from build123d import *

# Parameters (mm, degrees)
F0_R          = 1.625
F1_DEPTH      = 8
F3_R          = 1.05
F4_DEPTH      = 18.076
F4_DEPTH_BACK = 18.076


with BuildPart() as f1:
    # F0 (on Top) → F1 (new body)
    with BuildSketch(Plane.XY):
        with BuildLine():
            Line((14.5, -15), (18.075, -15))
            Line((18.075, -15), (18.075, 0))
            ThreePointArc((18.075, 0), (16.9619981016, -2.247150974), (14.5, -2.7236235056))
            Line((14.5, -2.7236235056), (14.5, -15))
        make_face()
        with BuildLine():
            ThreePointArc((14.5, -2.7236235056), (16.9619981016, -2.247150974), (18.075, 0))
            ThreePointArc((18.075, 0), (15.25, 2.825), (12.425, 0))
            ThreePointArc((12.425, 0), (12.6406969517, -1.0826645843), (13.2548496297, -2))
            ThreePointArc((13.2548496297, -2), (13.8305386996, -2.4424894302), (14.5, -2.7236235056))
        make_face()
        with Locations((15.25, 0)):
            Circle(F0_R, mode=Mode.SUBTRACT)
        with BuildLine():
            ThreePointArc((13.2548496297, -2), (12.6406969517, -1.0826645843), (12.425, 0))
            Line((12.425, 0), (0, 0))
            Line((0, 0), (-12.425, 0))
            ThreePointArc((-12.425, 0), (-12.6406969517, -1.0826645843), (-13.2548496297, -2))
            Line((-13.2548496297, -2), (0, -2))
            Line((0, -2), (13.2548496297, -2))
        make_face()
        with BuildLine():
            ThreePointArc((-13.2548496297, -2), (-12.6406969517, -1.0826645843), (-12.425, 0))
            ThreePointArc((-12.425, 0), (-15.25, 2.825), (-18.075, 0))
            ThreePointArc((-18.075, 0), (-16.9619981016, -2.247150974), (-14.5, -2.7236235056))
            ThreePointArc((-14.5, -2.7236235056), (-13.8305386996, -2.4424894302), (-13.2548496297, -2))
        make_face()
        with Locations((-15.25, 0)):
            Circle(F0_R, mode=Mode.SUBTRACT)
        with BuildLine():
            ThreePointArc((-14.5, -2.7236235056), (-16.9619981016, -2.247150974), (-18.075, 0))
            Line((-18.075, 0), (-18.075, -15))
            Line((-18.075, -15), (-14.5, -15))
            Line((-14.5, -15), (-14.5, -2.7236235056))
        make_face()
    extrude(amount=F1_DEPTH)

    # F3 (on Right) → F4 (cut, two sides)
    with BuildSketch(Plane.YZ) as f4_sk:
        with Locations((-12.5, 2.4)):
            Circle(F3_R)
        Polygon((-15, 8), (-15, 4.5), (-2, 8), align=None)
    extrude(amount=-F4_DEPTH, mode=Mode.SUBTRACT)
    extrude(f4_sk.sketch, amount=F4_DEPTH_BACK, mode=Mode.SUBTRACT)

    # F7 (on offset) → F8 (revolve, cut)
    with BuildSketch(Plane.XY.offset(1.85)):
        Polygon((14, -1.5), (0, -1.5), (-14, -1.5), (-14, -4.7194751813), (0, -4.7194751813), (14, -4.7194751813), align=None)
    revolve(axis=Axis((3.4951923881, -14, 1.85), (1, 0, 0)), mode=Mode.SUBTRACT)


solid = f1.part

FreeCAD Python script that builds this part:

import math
import FreeCAD as App
import Part
import Sketcher
from FreeCAD import Vector
Q = App.Units.Quantity


def add_polygon(sketch, points):
    """Adds a closed chain of lines whose ends are joined by coincident constraints."""
    first, n = sketch.GeometryCount, len(points)
    for a, b in zip(points, points[1:] + points[:1]):
        sketch.addGeometry(Part.LineSegment(App.Vector(*a, 0), App.Vector(*b, 0)), False)
    for i in range(n):
        sketch.addConstraint(Sketcher.Constraint("Coincident", first + i, 2, first + (i + 1) % n, 1))

doc = App.newDocument("Part")
params = doc.addObject("Spreadsheet::Sheet", "Params")
for row, (alias, value) in enumerate([
    ("sketch1_diameter", "3.25 mm"),
    ("sketch1_height", "15 mm"),
    ("sketch1_width", "24.85 mm"),
    ("pad1_length", "8 mm"),
    ("sketch2_diameter", "2.1 mm"),
    ("sketch2_width", "13 mm"),
    ("sketch2_height", "3.5 mm"),
    ("sketch3_width", "28 mm"),
    ("groove_angle", "360 deg"),
], start=1):
    params.set(f"A{row}", alias)
    params.set(f"B{row}", "=" + value)
    params.setAlias(f"B{row}", alias)

body = doc.addObject("PartDesign::Body", "Body")

# Sketch on XY plane
sketch1 = body.newObject("Sketcher::SketchObject", "Sketch")
sketch1.AttachmentSupport = (doc.getObject("XY_Plane"), [""])
sketch1.MapMode = "FlatFace"
sketch1.addGeometry(Part.LineSegment(Vector(14.5, -15, 0), Vector(18.075, -15, 0)), False)
sketch1.addGeometry(Part.LineSegment(Vector(18.075, -15, 0), Vector(18.075, 0, 0)), False)
sketch1.addGeometry(Part.ArcOfCircle(Part.Circle(Vector(15.25, 0, 0), Vector(0, 0, 1), 2.825), math.radians(0), math.radians(180)), False)
sketch1.addGeometry(Part.LineSegment(Vector(12.425, 0, 0), Vector(-12.425, 0, 0)), False)
sketch1.addGeometry(Part.ArcOfCircle(Part.Circle(Vector(-15.25, 0, 0), Vector(0, 0, 1), 2.825), math.radians(0), math.radians(180)), False)
sketch1.addGeometry(Part.LineSegment(Vector(-18.075, 0, 0), Vector(-18.075, -15, 0)), False)
sketch1.addGeometry(Part.LineSegment(Vector(-18.075, -15, 0), Vector(-14.5, -15, 0)), False)
sketch1.addGeometry(Part.LineSegment(Vector(-14.5, -15, 0), Vector(-14.5, -2.723624, 0)), False)
sketch1.addGeometry(Part.ArcOfCircle(Part.Circle(Vector(-15.25, 0, 0), Vector(0, 0, 1), 2.825), math.radians(-74.604124), math.radians(-45.06955)), False)
sketch1.addGeometry(Part.LineSegment(Vector(-13.25485, -2, 0), Vector(13.25485, -2, 0)), False)
sketch1.addGeometry(Part.ArcOfCircle(Part.Circle(Vector(15.25, 0, 0), Vector(0, 0, 1), 2.825), math.radians(-134.93045), math.radians(-105.395876)), False)
sketch1.addGeometry(Part.LineSegment(Vector(14.5, -2.723624, 0), Vector(14.5, -15, 0)), False)
sketch1.addGeometry(Part.Circle(Vector(-15.25, 0, 0), Vector(0, 0, 1), 1.625), False)
sketch1.addGeometry(Part.Circle(Vector(15.25, 0, 0), Vector(0, 0, 1), 1.625), False)
sketch1.addConstraint(Sketcher.Constraint("Coincident", 0, 2, 1, 1))
sketch1.addConstraint(Sketcher.Constraint("Tangent", 1, 2, 2, 1))
sketch1.addConstraint(Sketcher.Constraint("Coincident", 2, 2, 3, 1))
sketch1.addConstraint(Sketcher.Constraint("Coincident", 3, 2, 4, 1))
sketch1.addConstraint(Sketcher.Constraint("Tangent", 4, 2, 5, 1))
sketch1.addConstraint(Sketcher.Constraint("Coincident", 5, 2, 6, 1))
sketch1.addConstraint(Sketcher.Constraint("Coincident", 6, 2, 7, 1))
sketch1.addConstraint(Sketcher.Constraint("Coincident", 7, 2, 8, 1))
sketch1.addConstraint(Sketcher.Constraint("Coincident", 8, 2, 9, 1))
sketch1.addConstraint(Sketcher.Constraint("Coincident", 9, 2, 10, 1))
sketch1.addConstraint(Sketcher.Constraint("Coincident", 10, 2, 11, 1))
sketch1.addConstraint(Sketcher.Constraint("Coincident", 11, 2, 0, 1))
sketch1.addConstraint(Sketcher.Constraint("Horizontal", 0))
sketch1.addConstraint(Sketcher.Constraint("Vertical", 1))
sketch1.addConstraint(Sketcher.Constraint("Horizontal", 3))
sketch1.addConstraint(Sketcher.Constraint("Vertical", 5))
sketch1.addConstraint(Sketcher.Constraint("Horizontal", 6))
sketch1.addConstraint(Sketcher.Constraint("Vertical", 7))
sketch1.addConstraint(Sketcher.Constraint("Horizontal", 9))
sketch1.addConstraint(Sketcher.Constraint("Vertical", 11))
sketch1.addConstraint(Sketcher.Constraint("Coincident", 8, 3, 4, 3))
sketch1.addConstraint(Sketcher.Constraint("Coincident", 10, 3, 2, 3))
sketch1.addConstraint(Sketcher.Constraint("Coincident", 12, 3, 4, 3))
sketch1.addConstraint(Sketcher.Constraint("Coincident", 13, 3, 2, 3))
sketch1.addConstraint(Sketcher.Constraint("Equal", 2, 4))
sketch1.addConstraint(Sketcher.Constraint("Equal", 4, 8))
sketch1.addConstraint(Sketcher.Constraint("Equal", 8, 10))
sketch1.addConstraint(Sketcher.Constraint("Equal", 12, 13))
sketch1.addConstraint(Sketcher.Constraint("Symmetric", 2, 3, 4, 3, -1, 1))
sketch1.addConstraint(Sketcher.Constraint("Symmetric", 7, 2, 10, 2, -2))
sketch1.addConstraint(Sketcher.Constraint("PointOnObject", 2, 2, -1))
sketch1.addConstraint(Sketcher.Constraint("Horizontal", 0, 2, 5, 2))
sketch1.addConstraint(Sketcher.Constraint("Diameter", 12, Q("3.25 mm")))
sketch1.addConstraint(Sketcher.Constraint("DistanceY", 1, 1, 1, 2, Q("15 mm")))
sketch1.addConstraint(Sketcher.Constraint("DistanceY", 8, 2, -1, 1, Q("2 mm")))
sketch1.addConstraint(Sketcher.Constraint("Radius", 2, Q("2.825 mm")))
sketch1.addConstraint(Sketcher.Constraint("DistanceX", 3, 2, 3, 1, Q("24.85 mm")))
sketch1.addConstraint(Sketcher.Constraint("DistanceX", 6, 2, -1, 1, Q("14.5 mm")))
sketch1.setExpression("Constraints[32]", "Params.sketch1_diameter")
sketch1.setExpression("Constraints[33]", "Params.sketch1_height")
sketch1.setExpression("Constraints[36]", "Params.sketch1_width")
pad1 = body.newObject("PartDesign::Pad", "Pad")
pad1.Profile = sketch1
pad1.setExpression("Length", "Params.pad1_length")

# Sketch on YZ plane
sketch2 = body.newObject("Sketcher::SketchObject", "Sketch001")
sketch2.AttachmentSupport = (doc.getObject("YZ_Plane"), [""])
sketch2.MapMode = "FlatFace"
sketch2.addGeometry(Part.Circle(Vector(-12.5, 2.4, 0), Vector(0, 0, 1), 1.05), False)  # 0
add_polygon(sketch2, [(-15, 8), (-15, 4.5), (-2, 8)])  # lines 1-3
sketch2.addConstraint(Sketcher.Constraint("Vertical", 1))
sketch2.addConstraint(Sketcher.Constraint("Horizontal", 3))
sketch2.addConstraint(Sketcher.Constraint("Diameter", 0, Q("2.1 mm")))
sketch2.addConstraint(Sketcher.Constraint("DistanceX", 3, 2, 3, 1, Q("13 mm")))
sketch2.addConstraint(Sketcher.Constraint("DistanceY", 1, 2, 1, 1, Q("3.5 mm")))
sketch2.addConstraint(Sketcher.Constraint("DistanceX", 1, 2, -1, 1, Q("15 mm")))
sketch2.addConstraint(Sketcher.Constraint("DistanceY", -1, 1, 2, 2, Q("8 mm")))
sketch2.addConstraint(Sketcher.Constraint("DistanceX", 0, 3, -1, 1, Q("12.5 mm")))
sketch2.addConstraint(Sketcher.Constraint("DistanceY", -1, 1, 0, 3, Q("2.4 mm")))
sketch2.setExpression("Constraints[5]", "Params.sketch2_diameter")
sketch2.setExpression("Constraints[6]", "Params.sketch2_width")
sketch2.setExpression("Constraints[7]", "Params.sketch2_height")
pocket1 = body.newObject("PartDesign::Pocket", "Pocket")
pocket1.Profile = sketch2
pocket1.Type = "ThroughAll"
pocket1.Midplane = True

# Sketch on XY plane
sketch3 = body.newObject("Sketcher::SketchObject", "Sketch002")
sketch3.AttachmentSupport = (doc.getObject("XY_Plane"), [""])
sketch3.MapMode = "FlatFace"
sketch3.AttachmentOffset = App.Placement(Vector(0, 0, 1.85), App.Rotation())
add_polygon(sketch3, [(14, -1.5), (-14, -1.5), (-14, -4.719475), (14, -4.719475)])  # lines 0-3
sketch3.addGeometry(Part.LineSegment(Vector(-14, -14, 0), Vector(14, -14, 0)), True)  # axis
sketch3.addConstraint(Sketcher.Constraint("Horizontal", 0))
sketch3.addConstraint(Sketcher.Constraint("Vertical", 1))
sketch3.addConstraint(Sketcher.Constraint("Horizontal", 2))
sketch3.addConstraint(Sketcher.Constraint("Vertical", 3))
sketch3.addConstraint(Sketcher.Constraint("Horizontal", 4))
sketch3.addConstraint(Sketcher.Constraint("Vertical", 1, 2, 4, 1))
sketch3.addConstraint(Sketcher.Constraint("Vertical", 3, 2, 4, 2))
sketch3.addConstraint(Sketcher.Constraint("DistanceX", 0, 2, 0, 1, Q("28 mm")))
sketch3.addConstraint(Sketcher.Constraint("DistanceX", 0, 2, -1, 1, Q("14 mm")))
sketch3.addConstraint(Sketcher.Constraint("DistanceY", 4, 1, -1, 1, Q("14 mm")))
sketch3.addConstraint(Sketcher.Constraint("DistanceY", 0, 2, -1, 1, Q("1.5 mm")))
sketch3.addConstraint(Sketcher.Constraint("DistanceY", 1, 2, 1, 1, Q("3.219475 mm")))
sketch3.setExpression("Constraints[11]", "Params.sketch3_width")
groove = body.newObject("PartDesign::Groove", "Groove")
groove.Profile = sketch3
groove.ReferenceAxis = (sketch3, ["Axis0"])
groove.setExpression("Angle", "Params.groove_angle")

doc.recompute()
